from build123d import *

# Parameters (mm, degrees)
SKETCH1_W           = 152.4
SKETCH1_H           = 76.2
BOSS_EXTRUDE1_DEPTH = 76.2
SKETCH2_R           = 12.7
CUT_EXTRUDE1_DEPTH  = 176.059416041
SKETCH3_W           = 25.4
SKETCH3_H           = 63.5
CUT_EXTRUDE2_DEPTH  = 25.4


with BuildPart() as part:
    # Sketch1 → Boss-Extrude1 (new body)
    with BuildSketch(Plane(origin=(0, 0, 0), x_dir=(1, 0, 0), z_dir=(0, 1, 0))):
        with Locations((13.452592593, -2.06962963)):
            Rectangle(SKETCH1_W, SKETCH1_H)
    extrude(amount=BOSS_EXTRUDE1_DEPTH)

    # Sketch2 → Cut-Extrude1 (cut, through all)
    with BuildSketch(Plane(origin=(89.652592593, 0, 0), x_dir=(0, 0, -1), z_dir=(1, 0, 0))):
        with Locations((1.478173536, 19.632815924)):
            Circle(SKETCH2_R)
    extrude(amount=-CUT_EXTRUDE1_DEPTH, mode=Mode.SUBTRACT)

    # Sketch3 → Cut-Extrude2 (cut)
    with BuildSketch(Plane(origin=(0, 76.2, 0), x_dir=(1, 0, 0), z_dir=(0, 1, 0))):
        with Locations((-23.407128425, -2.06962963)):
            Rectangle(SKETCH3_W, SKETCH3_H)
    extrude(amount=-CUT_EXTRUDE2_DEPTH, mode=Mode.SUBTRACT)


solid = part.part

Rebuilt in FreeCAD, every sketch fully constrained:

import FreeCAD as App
import Part
import Sketcher

V = App.Vector
Q = App.Units.Quantity

doc = App.newDocument("Part")
body = doc.addObject("PartDesign::Body", "Body")

# Sketch on XZ plane
sketch1 = body.newObject("Sketcher::SketchObject", "Sketch")
sketch1.AttachmentSupport = (doc.getObject("XZ_Plane"), [""])
sketch1.MapMode = "FlatFace"
sketch1.addGeometry(Part.LineSegment(V(-62.747407, -36.03037, 0), V(-62.747407, 40.16963, 0)), False)
sketch1.addGeometry(Part.LineSegment(V(-62.747407, 40.16963, 0), V(89.652593, 40.16963, 0)), False)
sketch1.addGeometry(Part.LineSegment(V(89.652593, 40.16963, 0), V(89.652593, -36.03037, 0)), False)
sketch1.addGeometry(Part.LineSegment(V(89.652593, -36.03037, 0), V(-62.747407, -36.03037, 0)), False)
sketch1.addConstraint(Sketcher.Constraint("Coincident", 0, 2, 1, 1))
sketch1.addConstraint(Sketcher.Constraint("Coincident", 1, 2, 2, 1))
sketch1.addConstraint(Sketcher.Constraint("Coincident", 2, 2, 3, 1))
sketch1.addConstraint(Sketcher.Constraint("Coincident", 3, 2, 0, 1))
sketch1.addConstraint(Sketcher.Constraint("Vertical", 0))
sketch1.addConstraint(Sketcher.Constraint("Horizontal", 1))
sketch1.addConstraint(Sketcher.Constraint("Vertical", 2))
sketch1.addConstraint(Sketcher.Constraint("Horizontal", 3))
sketch1.addConstraint(Sketcher.Constraint("DistanceX", 1, 1, 1, 2, Q("6 in")))
sketch1.addConstraint(Sketcher.Constraint("DistanceY", 0, 1, 0, 2, Q("3 in")))
sketch1.addConstraint(Sketcher.Constraint("DistanceY", -1, 1, 0, 2, Q("40.16963 mm")))
sketch1.addConstraint(Sketcher.Constraint("DistanceX", 0, 2, -1, 1, Q("62.747407 mm")))
pad1 = body.newObject("PartDesign::Pad", "Pad")
pad1.Profile = sketch1
pad1.Length = Q("3 in")
pad1.Reversed = True

# Sketch on YZ plane
sketch2 = body.newObject("Sketcher::SketchObject", "Sketch001")
sketch2.AttachmentSupport = (doc.getObject("YZ_Plane"), [""])
sketch2.MapMode = "FlatFace"
sketch2.AttachmentOffset = App.Placement(V(0, 0, 89.652593), App.Rotation())
sketch2.addGeometry(Part.Circle(V(19.632816, -1.478174, 0), V(0, 0, 1), 12.7), False)
sketch2.addConstraint(Sketcher.Constraint("Diameter", 0, Q("1 in")))
sketch2.addConstraint(Sketcher.Constraint("DistanceX", -1, 1, 0, 3, Q("19.632816 mm")))
sketch2.addConstraint(Sketcher.Constraint("DistanceY", 0, 3, -1, 1, Q("1.478174 mm")))
pocket1 = body.newObject("PartDesign::Pocket", "Pocket")
pocket1.Profile = sketch2
pocket1.Type = "ThroughAll"

# Sketch on XZ plane
sketch3 = body.newObject("Sketcher::SketchObject", "Sketch002")
sketch3.AttachmentSupport = (doc.getObject("XZ_Plane"), [""])
sketch3.MapMode = "FlatFace"
sketch3.AttachmentOffset = App.Placement(V(0, 0, -3 * 25.4), App.Rotation())
sketch3.addGeometry(Part.LineSegment(V(-36.107128, -29.68037, 0), V(-36.107128, 33.81963, 0)), False)
sketch3.addGeometry(Part.LineSegment(V(-36.107128, 33.81963, 0), V(-10.707128, 33.81963, 0)), False)
sketch3.addGeometry(Part.LineSegment(V(-10.707128, 33.81963, 0), V(-10.707128, -29.68037, 0)), False)
sketch3.addGeometry(Part.LineSegment(V(-10.707128, -29.68037, 0), V(-36.107128, -29.68037, 0)), False)
sketch3.addConstraint(Sketcher.Constraint("Coincident", 0, 2, 1, 1))
sketch3.addConstraint(Sketcher.Constraint("Coincident", 1, 2, 2, 1))
sketch3.addConstraint(Sketcher.Constraint("Coincident", 2, 2, 3, 1))
sketch3.addConstraint(Sketcher.Constraint("Coincident", 3, 2, 0, 1))
sketch3.addConstraint(Sketcher.Constraint("Vertical", 0))
sketch3.addConstraint(Sketcher.Constraint("Horizontal", 1))
sketch3.addConstraint(Sketcher.Constraint("Vertical", 2))
sketch3.addConstraint(Sketcher.Constraint("Horizontal", 3))
sketch3.addConstraint(Sketcher.Constraint("DistanceX", 1, 1, 1, 2, Q("1 in")))
sketch3.addConstraint(Sketcher.Constraint("DistanceY", 0, 1, 0, 2, Q("2.5 in")))
sketch3.addConstraint(Sketcher.Constraint("DistanceX", 0, 2, -1, 1, Q("36.107128 mm")))
sketch3.addConstraint(Sketcher.Constraint("DistanceY", -1, 1, 0, 2, Q("33.81963 mm")))
pocket2 = body.newObject("PartDesign::Pocket", "Pocket001")
pocket2.Profile = sketch3
pocket2.Length = Q("1 in")
pocket2.Reversed = True

doc.recompute()
